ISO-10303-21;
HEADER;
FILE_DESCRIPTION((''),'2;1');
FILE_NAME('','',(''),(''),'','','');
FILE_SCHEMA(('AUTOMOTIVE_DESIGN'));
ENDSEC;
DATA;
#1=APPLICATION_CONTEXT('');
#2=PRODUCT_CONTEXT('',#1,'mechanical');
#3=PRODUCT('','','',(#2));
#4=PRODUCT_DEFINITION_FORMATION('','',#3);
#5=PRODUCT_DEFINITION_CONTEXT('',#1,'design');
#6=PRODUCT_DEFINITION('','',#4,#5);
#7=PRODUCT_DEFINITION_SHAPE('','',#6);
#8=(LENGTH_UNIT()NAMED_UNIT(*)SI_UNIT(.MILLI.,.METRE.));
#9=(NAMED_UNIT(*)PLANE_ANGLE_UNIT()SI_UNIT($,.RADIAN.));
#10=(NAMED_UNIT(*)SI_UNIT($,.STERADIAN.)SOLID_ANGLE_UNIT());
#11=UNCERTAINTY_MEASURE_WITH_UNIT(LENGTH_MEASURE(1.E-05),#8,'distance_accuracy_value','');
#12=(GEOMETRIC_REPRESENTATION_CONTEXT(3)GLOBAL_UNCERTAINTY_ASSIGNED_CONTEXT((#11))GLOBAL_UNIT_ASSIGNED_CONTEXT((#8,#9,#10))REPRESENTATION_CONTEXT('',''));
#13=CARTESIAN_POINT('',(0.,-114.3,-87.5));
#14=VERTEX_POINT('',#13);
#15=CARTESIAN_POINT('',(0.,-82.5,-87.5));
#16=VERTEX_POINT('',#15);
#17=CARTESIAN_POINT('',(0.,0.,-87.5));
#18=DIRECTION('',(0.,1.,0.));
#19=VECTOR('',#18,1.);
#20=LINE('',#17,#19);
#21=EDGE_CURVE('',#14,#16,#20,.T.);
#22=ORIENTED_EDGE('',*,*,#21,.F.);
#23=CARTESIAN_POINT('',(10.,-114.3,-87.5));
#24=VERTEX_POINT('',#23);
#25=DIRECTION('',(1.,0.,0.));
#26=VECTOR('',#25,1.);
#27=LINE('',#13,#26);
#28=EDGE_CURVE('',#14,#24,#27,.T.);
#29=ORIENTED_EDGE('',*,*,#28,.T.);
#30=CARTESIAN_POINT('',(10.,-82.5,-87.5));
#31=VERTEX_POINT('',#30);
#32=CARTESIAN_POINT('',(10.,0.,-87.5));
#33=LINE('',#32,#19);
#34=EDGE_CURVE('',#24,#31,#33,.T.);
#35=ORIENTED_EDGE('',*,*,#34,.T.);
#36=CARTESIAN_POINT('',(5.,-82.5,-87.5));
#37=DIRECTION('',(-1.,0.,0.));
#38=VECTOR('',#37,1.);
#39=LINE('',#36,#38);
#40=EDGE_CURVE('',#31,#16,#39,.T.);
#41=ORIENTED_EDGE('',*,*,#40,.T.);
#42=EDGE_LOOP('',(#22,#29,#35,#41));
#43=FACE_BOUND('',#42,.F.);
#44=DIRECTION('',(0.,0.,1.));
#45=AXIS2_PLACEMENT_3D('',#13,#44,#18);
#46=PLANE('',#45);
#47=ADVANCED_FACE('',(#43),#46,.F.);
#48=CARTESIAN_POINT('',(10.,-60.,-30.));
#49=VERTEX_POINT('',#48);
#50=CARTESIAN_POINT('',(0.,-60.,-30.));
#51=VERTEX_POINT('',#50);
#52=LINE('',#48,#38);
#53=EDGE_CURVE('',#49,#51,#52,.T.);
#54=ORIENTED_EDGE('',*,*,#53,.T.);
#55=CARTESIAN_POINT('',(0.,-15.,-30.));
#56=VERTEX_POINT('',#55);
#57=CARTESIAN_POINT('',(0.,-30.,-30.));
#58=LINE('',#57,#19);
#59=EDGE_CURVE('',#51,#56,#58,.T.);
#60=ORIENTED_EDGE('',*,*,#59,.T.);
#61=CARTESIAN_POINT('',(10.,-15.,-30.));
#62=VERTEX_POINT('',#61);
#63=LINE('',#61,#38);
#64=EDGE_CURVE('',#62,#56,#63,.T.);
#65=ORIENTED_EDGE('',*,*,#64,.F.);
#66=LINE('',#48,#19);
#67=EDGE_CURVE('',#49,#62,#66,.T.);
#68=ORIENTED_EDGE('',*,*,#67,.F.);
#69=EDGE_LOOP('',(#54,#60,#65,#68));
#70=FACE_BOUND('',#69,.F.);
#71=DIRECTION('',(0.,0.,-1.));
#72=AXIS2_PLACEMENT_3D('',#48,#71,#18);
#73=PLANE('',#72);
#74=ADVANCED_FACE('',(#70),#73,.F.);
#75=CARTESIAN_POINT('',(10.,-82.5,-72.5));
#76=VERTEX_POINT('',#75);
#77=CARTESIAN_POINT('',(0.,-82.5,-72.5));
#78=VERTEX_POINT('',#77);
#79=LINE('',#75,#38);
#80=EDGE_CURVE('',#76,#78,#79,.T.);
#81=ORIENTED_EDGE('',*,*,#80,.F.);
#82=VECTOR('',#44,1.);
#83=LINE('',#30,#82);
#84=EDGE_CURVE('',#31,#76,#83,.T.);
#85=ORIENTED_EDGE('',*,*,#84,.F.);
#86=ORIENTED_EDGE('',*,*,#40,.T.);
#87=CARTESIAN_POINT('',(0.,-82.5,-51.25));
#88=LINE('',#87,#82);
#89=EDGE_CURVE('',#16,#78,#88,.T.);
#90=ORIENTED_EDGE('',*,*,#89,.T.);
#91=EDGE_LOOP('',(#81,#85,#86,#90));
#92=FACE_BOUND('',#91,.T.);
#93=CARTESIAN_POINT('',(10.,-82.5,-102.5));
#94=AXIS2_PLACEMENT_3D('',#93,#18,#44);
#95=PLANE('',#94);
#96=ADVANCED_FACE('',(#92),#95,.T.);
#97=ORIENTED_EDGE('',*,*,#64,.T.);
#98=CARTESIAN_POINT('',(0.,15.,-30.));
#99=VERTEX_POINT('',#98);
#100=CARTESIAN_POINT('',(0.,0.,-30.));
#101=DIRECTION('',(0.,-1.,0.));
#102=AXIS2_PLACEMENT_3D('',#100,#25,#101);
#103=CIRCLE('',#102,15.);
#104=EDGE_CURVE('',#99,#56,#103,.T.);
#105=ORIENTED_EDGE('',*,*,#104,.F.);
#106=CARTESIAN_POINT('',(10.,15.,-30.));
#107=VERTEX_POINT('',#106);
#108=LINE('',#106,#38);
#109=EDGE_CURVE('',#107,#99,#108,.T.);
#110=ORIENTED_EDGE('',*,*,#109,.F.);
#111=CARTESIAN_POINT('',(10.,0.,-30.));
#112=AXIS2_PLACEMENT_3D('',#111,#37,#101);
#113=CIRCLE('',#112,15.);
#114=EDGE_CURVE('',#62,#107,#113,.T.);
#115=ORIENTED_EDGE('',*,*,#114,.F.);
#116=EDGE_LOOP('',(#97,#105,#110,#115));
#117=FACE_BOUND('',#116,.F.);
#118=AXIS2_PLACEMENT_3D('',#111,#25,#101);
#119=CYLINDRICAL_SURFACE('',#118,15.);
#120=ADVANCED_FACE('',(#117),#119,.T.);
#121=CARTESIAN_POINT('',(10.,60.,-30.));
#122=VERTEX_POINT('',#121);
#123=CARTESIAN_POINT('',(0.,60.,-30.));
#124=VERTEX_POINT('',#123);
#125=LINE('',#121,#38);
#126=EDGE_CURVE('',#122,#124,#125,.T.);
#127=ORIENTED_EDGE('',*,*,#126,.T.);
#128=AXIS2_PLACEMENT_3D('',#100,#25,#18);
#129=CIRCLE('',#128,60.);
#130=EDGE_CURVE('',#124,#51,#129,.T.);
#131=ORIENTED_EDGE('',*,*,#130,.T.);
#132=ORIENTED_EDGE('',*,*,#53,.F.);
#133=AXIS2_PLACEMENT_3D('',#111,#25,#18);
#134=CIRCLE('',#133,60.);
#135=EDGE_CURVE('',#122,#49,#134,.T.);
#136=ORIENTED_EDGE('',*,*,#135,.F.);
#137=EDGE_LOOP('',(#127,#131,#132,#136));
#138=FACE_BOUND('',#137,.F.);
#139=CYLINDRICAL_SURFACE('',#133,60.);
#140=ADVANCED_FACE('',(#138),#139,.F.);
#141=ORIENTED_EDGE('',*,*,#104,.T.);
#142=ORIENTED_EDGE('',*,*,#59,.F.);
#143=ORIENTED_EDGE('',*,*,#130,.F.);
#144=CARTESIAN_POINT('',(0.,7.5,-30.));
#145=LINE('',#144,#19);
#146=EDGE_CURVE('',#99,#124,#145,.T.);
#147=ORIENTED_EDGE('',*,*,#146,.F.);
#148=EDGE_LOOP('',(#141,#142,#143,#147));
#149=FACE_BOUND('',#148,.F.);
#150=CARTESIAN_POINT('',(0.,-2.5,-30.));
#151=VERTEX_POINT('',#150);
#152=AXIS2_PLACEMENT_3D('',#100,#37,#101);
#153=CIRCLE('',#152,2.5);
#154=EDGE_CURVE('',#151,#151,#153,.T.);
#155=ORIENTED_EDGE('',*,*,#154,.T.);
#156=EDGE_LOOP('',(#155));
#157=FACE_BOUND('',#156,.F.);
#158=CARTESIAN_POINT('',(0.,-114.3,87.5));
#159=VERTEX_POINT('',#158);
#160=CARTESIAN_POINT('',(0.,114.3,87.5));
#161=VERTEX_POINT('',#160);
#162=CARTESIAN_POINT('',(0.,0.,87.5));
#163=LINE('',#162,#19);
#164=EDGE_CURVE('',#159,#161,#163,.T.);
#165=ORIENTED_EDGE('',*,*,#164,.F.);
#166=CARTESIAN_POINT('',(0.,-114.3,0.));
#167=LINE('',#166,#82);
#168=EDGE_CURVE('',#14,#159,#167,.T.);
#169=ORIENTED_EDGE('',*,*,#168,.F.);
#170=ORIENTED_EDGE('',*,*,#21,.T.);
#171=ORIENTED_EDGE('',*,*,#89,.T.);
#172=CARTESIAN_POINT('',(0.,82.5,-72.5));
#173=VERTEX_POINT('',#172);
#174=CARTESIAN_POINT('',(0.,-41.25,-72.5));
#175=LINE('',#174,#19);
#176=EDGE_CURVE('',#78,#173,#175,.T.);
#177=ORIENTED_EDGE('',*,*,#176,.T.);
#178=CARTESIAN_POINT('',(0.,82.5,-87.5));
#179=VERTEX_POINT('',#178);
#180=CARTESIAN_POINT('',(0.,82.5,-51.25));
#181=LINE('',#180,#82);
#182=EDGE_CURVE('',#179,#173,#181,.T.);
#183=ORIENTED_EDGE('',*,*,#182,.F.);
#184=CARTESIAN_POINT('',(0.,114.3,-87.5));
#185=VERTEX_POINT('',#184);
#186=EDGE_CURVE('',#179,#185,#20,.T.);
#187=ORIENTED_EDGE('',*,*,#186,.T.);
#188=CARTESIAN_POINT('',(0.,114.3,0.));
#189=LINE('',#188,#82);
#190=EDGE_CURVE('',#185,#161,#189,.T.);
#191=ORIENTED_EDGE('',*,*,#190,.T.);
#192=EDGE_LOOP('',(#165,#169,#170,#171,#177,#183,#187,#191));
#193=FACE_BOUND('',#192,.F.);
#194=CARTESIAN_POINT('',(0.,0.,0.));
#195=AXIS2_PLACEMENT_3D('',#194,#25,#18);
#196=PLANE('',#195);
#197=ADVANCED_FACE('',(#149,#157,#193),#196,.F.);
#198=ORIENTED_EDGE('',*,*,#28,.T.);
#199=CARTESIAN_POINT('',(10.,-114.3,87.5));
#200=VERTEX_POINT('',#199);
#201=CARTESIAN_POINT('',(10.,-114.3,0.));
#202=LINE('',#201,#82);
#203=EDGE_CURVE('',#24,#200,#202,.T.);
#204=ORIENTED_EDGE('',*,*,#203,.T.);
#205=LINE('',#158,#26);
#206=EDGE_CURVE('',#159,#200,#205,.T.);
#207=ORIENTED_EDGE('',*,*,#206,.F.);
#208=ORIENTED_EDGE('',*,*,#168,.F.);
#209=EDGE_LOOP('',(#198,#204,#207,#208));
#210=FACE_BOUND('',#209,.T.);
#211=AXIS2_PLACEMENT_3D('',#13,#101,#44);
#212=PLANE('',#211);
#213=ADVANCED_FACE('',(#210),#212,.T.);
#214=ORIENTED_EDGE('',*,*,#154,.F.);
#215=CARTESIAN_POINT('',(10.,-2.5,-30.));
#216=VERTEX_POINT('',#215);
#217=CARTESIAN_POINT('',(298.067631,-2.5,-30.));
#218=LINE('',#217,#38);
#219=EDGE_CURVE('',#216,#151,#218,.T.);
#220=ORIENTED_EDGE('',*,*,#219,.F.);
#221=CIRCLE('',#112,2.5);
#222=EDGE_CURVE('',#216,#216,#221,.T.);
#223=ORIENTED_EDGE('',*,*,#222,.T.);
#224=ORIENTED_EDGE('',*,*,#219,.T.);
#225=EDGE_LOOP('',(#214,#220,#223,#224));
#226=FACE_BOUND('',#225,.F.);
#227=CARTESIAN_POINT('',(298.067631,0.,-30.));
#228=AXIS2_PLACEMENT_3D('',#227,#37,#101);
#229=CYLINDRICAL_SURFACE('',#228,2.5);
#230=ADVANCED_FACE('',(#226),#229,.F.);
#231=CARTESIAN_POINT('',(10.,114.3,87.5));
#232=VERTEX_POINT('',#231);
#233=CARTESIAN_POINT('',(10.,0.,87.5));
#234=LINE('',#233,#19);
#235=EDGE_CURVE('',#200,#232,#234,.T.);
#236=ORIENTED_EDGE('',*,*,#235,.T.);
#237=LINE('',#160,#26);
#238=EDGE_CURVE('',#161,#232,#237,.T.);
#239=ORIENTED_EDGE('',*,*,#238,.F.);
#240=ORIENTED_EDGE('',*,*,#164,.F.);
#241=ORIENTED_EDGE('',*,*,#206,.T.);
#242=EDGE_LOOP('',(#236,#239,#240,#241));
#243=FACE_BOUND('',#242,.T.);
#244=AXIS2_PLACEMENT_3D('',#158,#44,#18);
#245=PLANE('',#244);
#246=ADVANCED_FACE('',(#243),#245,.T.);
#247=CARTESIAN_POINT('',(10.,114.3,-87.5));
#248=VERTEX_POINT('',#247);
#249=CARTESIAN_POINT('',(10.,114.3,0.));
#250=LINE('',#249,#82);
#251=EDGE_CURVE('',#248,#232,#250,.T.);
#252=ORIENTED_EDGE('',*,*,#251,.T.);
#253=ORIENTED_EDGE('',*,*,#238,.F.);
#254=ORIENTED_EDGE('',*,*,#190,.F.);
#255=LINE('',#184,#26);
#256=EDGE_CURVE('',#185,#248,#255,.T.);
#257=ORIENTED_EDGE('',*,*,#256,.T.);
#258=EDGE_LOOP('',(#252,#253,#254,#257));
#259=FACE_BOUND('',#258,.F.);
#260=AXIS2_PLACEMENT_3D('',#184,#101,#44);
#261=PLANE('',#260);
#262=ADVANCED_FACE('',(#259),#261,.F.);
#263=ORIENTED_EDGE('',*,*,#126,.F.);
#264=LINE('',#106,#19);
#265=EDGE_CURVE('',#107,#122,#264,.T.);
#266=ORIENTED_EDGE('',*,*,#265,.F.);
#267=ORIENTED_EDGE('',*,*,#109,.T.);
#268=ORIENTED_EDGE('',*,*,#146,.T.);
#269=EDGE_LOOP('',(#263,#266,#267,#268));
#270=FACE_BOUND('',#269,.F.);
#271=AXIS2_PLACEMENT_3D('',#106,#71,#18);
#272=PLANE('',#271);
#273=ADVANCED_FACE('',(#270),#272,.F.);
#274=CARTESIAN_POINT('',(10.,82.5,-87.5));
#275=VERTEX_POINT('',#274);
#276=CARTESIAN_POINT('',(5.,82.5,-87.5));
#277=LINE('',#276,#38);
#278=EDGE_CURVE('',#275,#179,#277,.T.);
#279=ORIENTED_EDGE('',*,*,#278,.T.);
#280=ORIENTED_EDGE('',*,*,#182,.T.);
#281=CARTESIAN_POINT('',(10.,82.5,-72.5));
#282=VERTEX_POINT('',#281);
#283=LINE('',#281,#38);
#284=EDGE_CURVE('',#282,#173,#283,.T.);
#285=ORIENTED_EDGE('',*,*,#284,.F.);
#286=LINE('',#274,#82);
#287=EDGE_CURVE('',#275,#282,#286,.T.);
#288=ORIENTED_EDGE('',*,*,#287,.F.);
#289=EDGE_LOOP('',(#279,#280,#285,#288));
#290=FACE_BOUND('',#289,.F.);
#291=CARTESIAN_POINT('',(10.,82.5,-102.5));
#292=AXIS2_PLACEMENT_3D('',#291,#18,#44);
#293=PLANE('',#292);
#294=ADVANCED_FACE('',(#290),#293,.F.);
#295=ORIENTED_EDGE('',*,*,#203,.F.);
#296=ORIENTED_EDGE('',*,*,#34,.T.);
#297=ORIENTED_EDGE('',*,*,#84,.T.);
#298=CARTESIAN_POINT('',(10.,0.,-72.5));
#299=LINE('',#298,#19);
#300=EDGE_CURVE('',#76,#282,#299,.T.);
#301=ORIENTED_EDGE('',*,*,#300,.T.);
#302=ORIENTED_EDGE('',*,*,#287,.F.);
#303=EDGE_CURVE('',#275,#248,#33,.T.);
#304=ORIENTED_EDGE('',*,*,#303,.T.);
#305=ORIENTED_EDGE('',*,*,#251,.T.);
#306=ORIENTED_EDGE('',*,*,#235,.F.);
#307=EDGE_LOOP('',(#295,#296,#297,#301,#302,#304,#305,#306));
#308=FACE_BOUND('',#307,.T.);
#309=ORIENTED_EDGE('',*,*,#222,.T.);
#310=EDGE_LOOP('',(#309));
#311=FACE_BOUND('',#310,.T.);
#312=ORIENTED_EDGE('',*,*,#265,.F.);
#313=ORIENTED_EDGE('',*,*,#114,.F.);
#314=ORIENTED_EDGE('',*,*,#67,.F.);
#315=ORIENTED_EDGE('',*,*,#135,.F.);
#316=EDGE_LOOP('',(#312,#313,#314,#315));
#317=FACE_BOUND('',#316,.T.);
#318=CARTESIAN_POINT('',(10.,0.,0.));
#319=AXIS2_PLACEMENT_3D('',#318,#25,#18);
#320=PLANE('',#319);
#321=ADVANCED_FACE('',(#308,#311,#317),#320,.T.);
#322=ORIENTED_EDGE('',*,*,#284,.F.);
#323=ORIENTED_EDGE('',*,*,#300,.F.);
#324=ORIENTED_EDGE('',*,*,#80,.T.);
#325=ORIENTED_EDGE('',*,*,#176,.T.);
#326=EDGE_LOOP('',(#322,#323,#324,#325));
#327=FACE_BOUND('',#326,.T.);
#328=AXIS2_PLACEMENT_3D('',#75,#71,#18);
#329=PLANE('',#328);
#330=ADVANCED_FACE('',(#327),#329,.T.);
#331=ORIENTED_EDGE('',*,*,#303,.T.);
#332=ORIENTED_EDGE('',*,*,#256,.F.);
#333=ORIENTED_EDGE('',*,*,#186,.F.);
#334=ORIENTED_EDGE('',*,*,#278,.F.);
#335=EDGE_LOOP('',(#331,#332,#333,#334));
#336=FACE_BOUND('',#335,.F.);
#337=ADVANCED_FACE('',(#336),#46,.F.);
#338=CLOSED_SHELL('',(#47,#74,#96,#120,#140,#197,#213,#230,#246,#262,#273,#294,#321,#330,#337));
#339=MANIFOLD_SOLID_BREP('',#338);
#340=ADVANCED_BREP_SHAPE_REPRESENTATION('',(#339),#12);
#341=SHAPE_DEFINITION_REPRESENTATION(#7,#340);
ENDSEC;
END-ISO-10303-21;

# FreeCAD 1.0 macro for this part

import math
import FreeCAD as App
import Part
import Sketcher

V = App.Vector


def add_polygon(sketch, points):
    """Adds a closed chain of lines whose ends are joined by coincident constraints."""
    first, n = sketch.GeometryCount, len(points)
    for a, b in zip(points, points[1:] + points[:1]):
        sketch.addGeometry(Part.LineSegment(App.Vector(*a, 0), App.Vector(*b, 0)), False)
    for i in range(n):
        sketch.addConstraint(Sketcher.Constraint("Coincident", first + i, 2, first + (i + 1) % n, 1))

doc = App.newDocument("Part")
params = doc.addObject("Spreadsheet::Sheet", "Params")
for row, (alias, value) in enumerate([
    ("sketch1_height", "175 mm"),
    ("sketch1_width", "228.6 mm"),
    ("pad1_length", "10 mm"),
    ("sketch2_radius", "60 mm"),
    ("sketch2_radius2", "15 mm"),
    ("pocket1_length", "25 mm"),
    ("sketch3_width", "165 mm"),
    ("sketch3_height", "30 mm"),
    ("pocket2_length", "25 mm"),
    ("sketch4_diameter", "5 mm"),
    ("hole_diameter", "5 mm"),
], start=1):
    params.set(f"A{row}", alias)
    params.set(f"B{row}", "=" + value)
    params.setAlias(f"B{row}", alias)

body = doc.addObject("PartDesign::Body", "Body")

# Sketch on YZ plane
sketch1 = body.newObject("Sketcher::SketchObject", "Sketch")
sketch1.AttachmentSupport = (doc.getObject("YZ_Plane"), [""])
sketch1.MapMode = "FlatFace"
add_polygon(sketch1, [(-114, 88), (-114, -88), (114, -88), (114, 88)])  # lines 0-3
sketch1.addConstraint(Sketcher.Constraint("Vertical", 0))
sketch1.addConstraint(Sketcher.Constraint("Horizontal", 1))
sketch1.addConstraint(Sketcher.Constraint("Vertical", 2))
sketch1.addConstraint(Sketcher.Constraint("Horizontal", 3))
sketch1.addConstraint(Sketcher.Constraint("Symmetric", 0, 2, 2, 2, -1, 1))
sketch1.addConstraint(Sketcher.Constraint("DistanceY", 0, 2, 0, 1, 175.0))
sketch1.addConstraint(Sketcher.Constraint("DistanceX", 1, 1, 1, 2, 228.6))
sketch1.setExpression("Constraints[9]", "Params.sketch1_height")
sketch1.setExpression("Constraints[10]", "Params.sketch1_width")
pad1 = body.newObject("PartDesign::Pad", "Pad")
pad1.Profile = sketch1
pad1.setExpression("Length", "Params.pad1_length")

# Sketch on YZ plane
sketch2 = body.newObject("Sketcher::SketchObject", "Sketch001")
sketch2.AttachmentSupport = (doc.getObject("YZ_Plane"), [""])
sketch2.MapMode = "FlatFace"
sketch2.AttachmentOffset = App.Placement(V(0, 0, 10), App.Rotation())
sketch2.addGeometry(Part.LineSegment(V(15, -30, 0), V(60, -30, 0)), False)
sketch2.addGeometry(Part.ArcOfCircle(Part.Circle(V(0, -30, 0), V(0, 0, 1), 60), math.radians(0), math.radians(180)), False)
sketch2.addGeometry(Part.LineSegment(V(-60, -30, 0), V(-15, -30, 0)), False)
sketch2.addGeometry(Part.ArcOfCircle(Part.Circle(V(0, -30, 0), V(0, 0, 1), 15), math.radians(0), math.radians(180)), False)
sketch2.addConstraint(Sketcher.Constraint("Coincident", 0, 2, 1, 1))
sketch2.addConstraint(Sketcher.Constraint("Coincident", 1, 2, 2, 1))
sketch2.addConstraint(Sketcher.Constraint("Coincident", 2, 2, 3, 2))
sketch2.addConstraint(Sketcher.Constraint("Coincident", 3, 1, 0, 1))
sketch2.addConstraint(Sketcher.Constraint("Horizontal", 0))
sketch2.addConstraint(Sketcher.Constraint("Horizontal", 2))
sketch2.addConstraint(Sketcher.Constraint("Coincident", 3, 3, 1, 3))
sketch2.addConstraint(Sketcher.Constraint("Symmetric", 0, 2, 1, 2, -2))
sketch2.addConstraint(Sketcher.Constraint("Horizontal", 3, 3, 0, 2))
sketch2.addConstraint(Sketcher.Constraint("Radius", 1, 60.0))
sketch2.addConstraint(Sketcher.Constraint("Radius", 3, 15.0))
sketch2.addConstraint(Sketcher.Constraint("DistanceY", 1, 3, -1, 1, 30.0))
sketch2.setExpression("Constraints[9]", "Params.sketch2_radius")
sketch2.setExpression("Constraints[10]", "Params.sketch2_radius2")
pocket1 = body.newObject("PartDesign::Pocket", "Pocket")
pocket1.Profile = sketch2
pocket1.setExpression("Length", "Params.pocket1_length")

# Sketch on YZ plane
sketch3 = body.newObject("Sketcher::SketchObject", "Sketch002")
sketch3.AttachmentSupport = (doc.getObject("YZ_Plane"), [""])
sketch3.MapMode = "FlatFace"
sketch3.AttachmentOffset = App.Placement(V(0, 0, 10), App.Rotation())
add_polygon(sketch3, [(-82, -72), (-82, -102), (82, -102), (82, -72)])  # lines 0-3
sketch3.addConstraint(Sketcher.Constraint("Vertical", 0))
sketch3.addConstraint(Sketcher.Constraint("Horizontal", 1))
sketch3.addConstraint(Sketcher.Constraint("Vertical", 2))
sketch3.addConstraint(Sketcher.Constraint("Horizontal", 3))
sketch3.addConstraint(Sketcher.Constraint("DistanceX", 1, 1, 1, 2, 165.0))
sketch3.addConstraint(Sketcher.Constraint("DistanceY", 0, 2, 0, 1, 30.0))
sketch3.addConstraint(Sketcher.Constraint("DistanceX", 0, 2, -1, 1, 82.5))
sketch3.addConstraint(Sketcher.Constraint("DistanceY", 0, 2, -1, 1, 102.5))
sketch3.setExpression("Constraints[8]", "Params.sketch3_width")
sketch3.setExpression("Constraints[9]", "Params.sketch3_height")
pocket2 = body.newObject("PartDesign::Pocket", "Pocket001")
pocket2.Profile = sketch3
pocket2.setExpression("Length", "Params.pocket2_length")

# Sketch on YZ plane
sketch4 = body.newObject("Sketcher::SketchObject", "Sketch003")
sketch4.AttachmentSupport = (doc.getObject("YZ_Plane"), [""])
sketch4.MapMode = "FlatFace"
sketch4.AttachmentOffset = App.Placement(V(0, 0, 10), App.Rotation())
sketch4.addGeometry(Part.Circle(V(0, -30, 0), V(0, 0, 1), 2.5), False)
sketch4.addConstraint(Sketcher.Constraint("PointOnObject", 0, 3, -2))
sketch4.addConstraint(Sketcher.Constraint("Diameter", 0, 5.0))
sketch4.addConstraint(Sketcher.Constraint("DistanceY", 0, 3, -1, 1, 30.0))
sketch4.setExpression("Constraints[1]", "Params.sketch4_diameter")
doc.recompute()
hole = body.newObject("PartDesign::Hole", "Hole")
hole.Profile = sketch4
hole.ThreadType = "None"
hole.setExpression("Diameter", "Params.hole_diameter")
hole.DepthType = "ThroughAll"

doc.recompute()
